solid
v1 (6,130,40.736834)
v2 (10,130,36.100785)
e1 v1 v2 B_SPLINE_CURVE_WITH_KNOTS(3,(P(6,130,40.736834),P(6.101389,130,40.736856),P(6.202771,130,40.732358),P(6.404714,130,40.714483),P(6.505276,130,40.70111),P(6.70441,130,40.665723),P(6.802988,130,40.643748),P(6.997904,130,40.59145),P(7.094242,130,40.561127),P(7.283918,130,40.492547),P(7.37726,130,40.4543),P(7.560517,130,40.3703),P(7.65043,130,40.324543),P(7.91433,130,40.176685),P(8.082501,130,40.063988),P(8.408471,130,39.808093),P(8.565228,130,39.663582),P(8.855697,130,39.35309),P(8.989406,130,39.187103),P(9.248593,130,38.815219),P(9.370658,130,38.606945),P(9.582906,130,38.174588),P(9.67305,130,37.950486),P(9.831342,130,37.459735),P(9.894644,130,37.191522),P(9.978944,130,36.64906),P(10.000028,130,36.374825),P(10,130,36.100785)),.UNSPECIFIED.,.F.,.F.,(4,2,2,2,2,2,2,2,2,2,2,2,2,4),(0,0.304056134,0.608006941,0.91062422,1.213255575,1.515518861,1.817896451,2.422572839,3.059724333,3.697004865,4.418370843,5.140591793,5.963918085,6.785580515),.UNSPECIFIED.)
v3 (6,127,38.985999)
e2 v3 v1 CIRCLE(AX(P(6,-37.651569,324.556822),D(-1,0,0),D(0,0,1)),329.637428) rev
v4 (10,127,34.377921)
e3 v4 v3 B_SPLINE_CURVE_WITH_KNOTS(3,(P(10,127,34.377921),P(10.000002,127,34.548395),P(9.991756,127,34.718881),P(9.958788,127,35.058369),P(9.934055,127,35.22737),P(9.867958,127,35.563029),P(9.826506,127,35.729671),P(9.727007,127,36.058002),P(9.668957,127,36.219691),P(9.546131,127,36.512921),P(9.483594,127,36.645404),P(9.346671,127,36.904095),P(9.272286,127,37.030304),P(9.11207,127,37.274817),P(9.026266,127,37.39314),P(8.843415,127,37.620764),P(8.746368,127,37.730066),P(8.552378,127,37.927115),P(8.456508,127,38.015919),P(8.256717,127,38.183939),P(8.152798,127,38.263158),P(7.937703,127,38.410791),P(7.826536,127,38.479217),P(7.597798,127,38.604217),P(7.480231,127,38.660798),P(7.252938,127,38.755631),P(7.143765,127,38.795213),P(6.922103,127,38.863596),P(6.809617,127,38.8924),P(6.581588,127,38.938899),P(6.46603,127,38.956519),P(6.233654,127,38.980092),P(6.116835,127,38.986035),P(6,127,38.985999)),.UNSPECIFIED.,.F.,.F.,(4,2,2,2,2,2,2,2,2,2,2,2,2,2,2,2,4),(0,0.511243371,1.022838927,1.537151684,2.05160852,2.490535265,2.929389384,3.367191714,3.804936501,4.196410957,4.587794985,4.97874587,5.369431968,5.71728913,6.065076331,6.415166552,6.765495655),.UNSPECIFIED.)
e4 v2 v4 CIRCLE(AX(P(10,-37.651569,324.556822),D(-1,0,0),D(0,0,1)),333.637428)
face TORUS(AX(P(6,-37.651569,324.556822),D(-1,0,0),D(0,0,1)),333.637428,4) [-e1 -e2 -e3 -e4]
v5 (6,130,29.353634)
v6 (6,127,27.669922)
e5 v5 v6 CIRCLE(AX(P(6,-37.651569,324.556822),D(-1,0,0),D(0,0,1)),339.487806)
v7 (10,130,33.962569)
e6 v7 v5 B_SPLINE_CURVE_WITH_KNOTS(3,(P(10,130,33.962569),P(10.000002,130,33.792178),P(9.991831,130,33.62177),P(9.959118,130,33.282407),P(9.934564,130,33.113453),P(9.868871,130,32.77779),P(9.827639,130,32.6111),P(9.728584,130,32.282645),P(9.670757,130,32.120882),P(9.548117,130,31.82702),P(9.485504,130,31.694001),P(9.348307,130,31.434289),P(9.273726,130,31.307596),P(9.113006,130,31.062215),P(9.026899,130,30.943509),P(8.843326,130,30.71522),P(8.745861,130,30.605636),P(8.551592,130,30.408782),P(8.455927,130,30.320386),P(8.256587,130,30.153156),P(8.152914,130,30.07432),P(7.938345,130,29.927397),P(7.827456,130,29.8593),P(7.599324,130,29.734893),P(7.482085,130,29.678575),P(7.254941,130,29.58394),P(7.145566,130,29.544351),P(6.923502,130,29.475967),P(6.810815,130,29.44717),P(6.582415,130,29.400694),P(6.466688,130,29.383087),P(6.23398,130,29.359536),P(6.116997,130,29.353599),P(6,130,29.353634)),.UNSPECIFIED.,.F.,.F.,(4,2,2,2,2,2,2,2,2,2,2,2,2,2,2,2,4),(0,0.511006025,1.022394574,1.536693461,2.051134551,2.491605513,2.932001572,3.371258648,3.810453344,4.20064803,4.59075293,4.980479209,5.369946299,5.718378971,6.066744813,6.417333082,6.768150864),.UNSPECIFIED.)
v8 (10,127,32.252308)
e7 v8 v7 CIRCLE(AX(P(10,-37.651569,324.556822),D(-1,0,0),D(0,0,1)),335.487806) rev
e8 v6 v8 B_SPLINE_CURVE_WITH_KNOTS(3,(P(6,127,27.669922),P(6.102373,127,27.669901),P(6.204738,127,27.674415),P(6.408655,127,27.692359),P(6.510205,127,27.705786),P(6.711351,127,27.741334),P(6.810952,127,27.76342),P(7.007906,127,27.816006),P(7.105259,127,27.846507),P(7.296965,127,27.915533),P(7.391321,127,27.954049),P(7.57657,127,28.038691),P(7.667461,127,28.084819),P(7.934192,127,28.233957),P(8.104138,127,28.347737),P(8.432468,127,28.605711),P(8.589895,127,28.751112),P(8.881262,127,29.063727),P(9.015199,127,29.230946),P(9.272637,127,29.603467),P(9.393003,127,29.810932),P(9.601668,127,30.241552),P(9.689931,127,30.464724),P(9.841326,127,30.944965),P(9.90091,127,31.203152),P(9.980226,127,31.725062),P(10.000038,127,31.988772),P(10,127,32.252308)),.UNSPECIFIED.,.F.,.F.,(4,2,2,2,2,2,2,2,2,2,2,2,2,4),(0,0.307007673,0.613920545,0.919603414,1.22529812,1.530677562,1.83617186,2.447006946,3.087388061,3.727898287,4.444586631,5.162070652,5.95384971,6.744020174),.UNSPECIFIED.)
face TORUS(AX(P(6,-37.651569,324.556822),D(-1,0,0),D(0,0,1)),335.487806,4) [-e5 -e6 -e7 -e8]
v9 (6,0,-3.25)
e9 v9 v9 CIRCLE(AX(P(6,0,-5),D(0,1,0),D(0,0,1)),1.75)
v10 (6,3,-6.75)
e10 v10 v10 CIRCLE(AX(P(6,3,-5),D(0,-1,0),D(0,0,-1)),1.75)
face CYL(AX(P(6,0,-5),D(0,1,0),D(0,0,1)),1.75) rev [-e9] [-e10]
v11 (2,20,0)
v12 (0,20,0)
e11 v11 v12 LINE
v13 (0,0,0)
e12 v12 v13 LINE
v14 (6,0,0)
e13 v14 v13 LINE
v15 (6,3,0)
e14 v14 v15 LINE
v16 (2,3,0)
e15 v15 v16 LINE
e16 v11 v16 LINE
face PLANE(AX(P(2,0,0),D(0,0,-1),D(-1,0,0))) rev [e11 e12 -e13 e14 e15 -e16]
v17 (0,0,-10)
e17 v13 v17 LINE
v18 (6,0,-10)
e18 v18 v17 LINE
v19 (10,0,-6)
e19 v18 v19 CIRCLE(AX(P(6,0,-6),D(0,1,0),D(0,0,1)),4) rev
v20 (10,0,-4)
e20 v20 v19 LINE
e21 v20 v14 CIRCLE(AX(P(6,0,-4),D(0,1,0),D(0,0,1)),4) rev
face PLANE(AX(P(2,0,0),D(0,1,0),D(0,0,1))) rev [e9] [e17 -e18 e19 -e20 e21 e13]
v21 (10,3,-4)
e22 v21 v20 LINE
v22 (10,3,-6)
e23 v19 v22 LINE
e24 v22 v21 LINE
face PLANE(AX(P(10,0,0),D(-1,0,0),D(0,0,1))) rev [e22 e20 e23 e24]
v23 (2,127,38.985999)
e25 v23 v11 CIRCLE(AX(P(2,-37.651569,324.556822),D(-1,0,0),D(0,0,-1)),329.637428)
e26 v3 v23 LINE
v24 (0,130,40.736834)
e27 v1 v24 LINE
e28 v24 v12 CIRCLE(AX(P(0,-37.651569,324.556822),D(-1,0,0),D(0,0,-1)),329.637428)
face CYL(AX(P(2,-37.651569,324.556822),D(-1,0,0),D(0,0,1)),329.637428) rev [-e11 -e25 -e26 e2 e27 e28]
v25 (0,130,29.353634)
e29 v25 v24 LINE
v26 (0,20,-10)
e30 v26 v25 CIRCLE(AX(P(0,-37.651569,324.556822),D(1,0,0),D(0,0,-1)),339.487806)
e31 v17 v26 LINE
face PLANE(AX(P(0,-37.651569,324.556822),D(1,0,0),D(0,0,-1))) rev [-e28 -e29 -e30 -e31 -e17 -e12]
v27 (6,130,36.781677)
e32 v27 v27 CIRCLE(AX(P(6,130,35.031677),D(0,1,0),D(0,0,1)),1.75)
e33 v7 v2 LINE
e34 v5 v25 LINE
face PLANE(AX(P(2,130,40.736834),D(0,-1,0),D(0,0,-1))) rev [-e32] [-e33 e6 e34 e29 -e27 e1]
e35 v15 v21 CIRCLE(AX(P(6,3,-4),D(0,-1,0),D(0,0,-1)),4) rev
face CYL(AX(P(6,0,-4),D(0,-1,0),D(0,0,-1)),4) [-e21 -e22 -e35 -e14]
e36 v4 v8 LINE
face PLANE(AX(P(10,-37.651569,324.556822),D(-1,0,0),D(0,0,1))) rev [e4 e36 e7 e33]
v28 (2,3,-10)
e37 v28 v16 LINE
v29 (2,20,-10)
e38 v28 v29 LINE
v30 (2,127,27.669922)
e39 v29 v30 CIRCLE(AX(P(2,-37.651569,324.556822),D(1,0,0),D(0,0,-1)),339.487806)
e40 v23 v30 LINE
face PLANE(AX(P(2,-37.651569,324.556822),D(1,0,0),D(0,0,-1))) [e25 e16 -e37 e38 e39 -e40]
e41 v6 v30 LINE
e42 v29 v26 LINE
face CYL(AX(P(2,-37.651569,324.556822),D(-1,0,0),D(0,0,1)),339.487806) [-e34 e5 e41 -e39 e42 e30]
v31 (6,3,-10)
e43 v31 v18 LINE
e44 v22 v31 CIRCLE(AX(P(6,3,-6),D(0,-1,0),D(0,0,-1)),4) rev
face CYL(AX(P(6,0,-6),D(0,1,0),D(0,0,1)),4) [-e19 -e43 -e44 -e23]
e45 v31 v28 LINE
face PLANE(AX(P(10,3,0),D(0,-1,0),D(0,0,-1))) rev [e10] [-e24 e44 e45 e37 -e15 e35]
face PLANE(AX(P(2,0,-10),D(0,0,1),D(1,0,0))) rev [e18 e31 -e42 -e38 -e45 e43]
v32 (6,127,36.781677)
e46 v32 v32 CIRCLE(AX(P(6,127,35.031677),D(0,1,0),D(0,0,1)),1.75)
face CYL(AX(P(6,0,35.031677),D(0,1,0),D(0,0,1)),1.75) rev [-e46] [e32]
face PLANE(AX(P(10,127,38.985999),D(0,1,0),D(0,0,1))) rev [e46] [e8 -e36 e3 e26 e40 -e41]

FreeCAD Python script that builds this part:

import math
import FreeCAD as App
import Part
import Sketcher
Q = App.Units.Quantity


def edges_at(feature, points):
    """Names of the edges that pass closest to the given points."""
    edges = feature.Shape.Edges
    near = lambda p: min(range(len(edges)), key=lambda i: edges[i].distToShape(Part.Vertex(*p))[0])
    return sorted({f"Edge{near(p) + 1}" for p in points})

doc = App.newDocument("Part")
body = doc.addObject("PartDesign::Body", "Body")

sketch1 = body.newObject("Sketcher::SketchObject", "Sketch")
sketch1.AttachmentSupport = (doc.getObject("YZ_Plane"), [""])
sketch1.MapMode = "FlatFace"
sketch1.addGeometry(Part.LineSegment(App.Vector(130, 29, 0), App.Vector(130, 41, 0)), False)
sketch1.addGeometry(Part.ArcOfCircle(Part.Circle(App.Vector(-38, 325, 0), App.Vector(0, 0, 1), 330), math.radians(-80), math.radians(-59)), False)
sketch1.addGeometry(Part.LineSegment(App.Vector(20, 0, 0), App.Vector(0, 0, 0)), False)
sketch1.addGeometry(Part.LineSegment(App.Vector(0, 0, 0), App.Vector(0, -10, 0)), False)
sketch1.addGeometry(Part.LineSegment(App.Vector(0, -10, 0), App.Vector(20, -10, 0)), False)
sketch1.addGeometry(Part.ArcOfCircle(Part.Circle(App.Vector(-38, 325, 0), App.Vector(0, 0, 1), 339), math.radians(-80.22), math.radians(-60.41)), False)
sketch1.addConstraint(Sketcher.Constraint("Coincident", 0, 2, 1, 2))
sketch1.addConstraint(Sketcher.Constraint("Coincident", 1, 1, 2, 1))
sketch1.addConstraint(Sketcher.Constraint("Coincident", 2, 2, 3, 1))
sketch1.addConstraint(Sketcher.Constraint("Coincident", 3, 2, 4, 1))
sketch1.addConstraint(Sketcher.Constraint("Coincident", 4, 2, 5, 1))
sketch1.addConstraint(Sketcher.Constraint("Coincident", 5, 2, 0, 1))
sketch1.addConstraint(Sketcher.Constraint("Vertical", 0))
sketch1.addConstraint(Sketcher.Constraint("Horizontal", 2))
sketch1.addConstraint(Sketcher.Constraint("Vertical", 3))
sketch1.addConstraint(Sketcher.Constraint("Horizontal", 4))
sketch1.addConstraint(Sketcher.Constraint("Coincident", 2, 2, -1, 1))
sketch1.addConstraint(Sketcher.Constraint("Coincident", 5, 3, 1, 3))
sketch1.addConstraint(Sketcher.Constraint("Vertical", 1, 1, 4, 2))
sketch1.addConstraint(Sketcher.Constraint("DistanceX", 2, 2, 2, 1, Q("20 mm")))
sketch1.addConstraint(Sketcher.Constraint("DistanceY", 3, 2, 3, 1, Q("10 mm")))
sketch1.addConstraint(Sketcher.Constraint("DistanceX", -1, 1, 0, 2, Q("130 mm")))
sketch1.addConstraint(Sketcher.Constraint("Radius", 1, Q("329.637428 mm")))
sketch1.addConstraint(Sketcher.Constraint("DistanceY", 0, 1, 0, 2, Q("11.3832 mm")))
pad1 = body.newObject("PartDesign::Pad", "Pad")
pad1.Profile = sketch1
pad1.Length = 2

sketch2 = body.newObject("Sketcher::SketchObject", "Sketch001")
sketch2.AttachmentSupport = (doc.getObject("YZ_Plane"), [""])
sketch2.MapMode = "FlatFace"
sketch2.AttachmentOffset = App.Placement(App.Vector(0, 0, 2), App.Rotation())
sketch2.addGeometry(Part.LineSegment(App.Vector(3, 0, 0), App.Vector(0, 0, 0)), False)
sketch2.addGeometry(Part.LineSegment(App.Vector(0, 0, 0), App.Vector(0, -10, 0)), False)
sketch2.addGeometry(Part.LineSegment(App.Vector(0, -10, 0), App.Vector(3, -10, 0)), False)
sketch2.addGeometry(Part.LineSegment(App.Vector(3, -10, 0), App.Vector(3, 0, 0)), False)
sketch2.addGeometry(Part.LineSegment(App.Vector(130, 29.4, 0), App.Vector(130, 40.7, 0)), False)
sketch2.addGeometry(Part.ArcOfCircle(Part.Circle(App.Vector(-37.7, 324.6, 0), App.Vector(0, 0, 1), 329.6), math.radians(-60.03), math.radians(-59.43)), False)
sketch2.addGeometry(Part.LineSegment(App.Vector(127, 39, 0), App.Vector(127, 27.7, 0)), False)
sketch2.addGeometry(Part.ArcOfCircle(Part.Circle(App.Vector(-37.7, 324.6, 0), App.Vector(0, 0, 1), 339.5), math.radians(-60.99), math.radians(-60.41)), False)
sketch2.addConstraint(Sketcher.Constraint("Coincident", 0, 2, 1, 1))
sketch2.addConstraint(Sketcher.Constraint("Coincident", 1, 2, 2, 1))
sketch2.addConstraint(Sketcher.Constraint("Coincident", 2, 2, 3, 1))
sketch2.addConstraint(Sketcher.Constraint("Coincident", 3, 2, 0, 1))
sketch2.addConstraint(Sketcher.Constraint("Coincident", 4, 2, 5, 2))
sketch2.addConstraint(Sketcher.Constraint("Coincident", 5, 1, 6, 1))
sketch2.addConstraint(Sketcher.Constraint("Coincident", 6, 2, 7, 1))
sketch2.addConstraint(Sketcher.Constraint("Coincident", 7, 2, 4, 1))
sketch2.addConstraint(Sketcher.Constraint("Horizontal", 0))
sketch2.addConstraint(Sketcher.Constraint("Vertical", 1))
sketch2.addConstraint(Sketcher.Constraint("Horizontal", 2))
sketch2.addConstraint(Sketcher.Constraint("Vertical", 3))
sketch2.addConstraint(Sketcher.Constraint("Vertical", 4))
sketch2.addConstraint(Sketcher.Constraint("Vertical", 6))
sketch2.addConstraint(Sketcher.Constraint("Coincident", 0, 2, -1, 1))
sketch2.addConstraint(Sketcher.Constraint("Coincident", 7, 3, 5, 3))
sketch2.addConstraint(Sketcher.Constraint("DistanceX", 0, 2, 0, 1, Q("3 mm")))
sketch2.addConstraint(Sketcher.Constraint("DistanceY", 1, 2, 1, 1, Q("10 mm")))
sketch2.addConstraint(Sketcher.Constraint("DistanceX", -1, 1, 4, 2, Q("130 mm")))
sketch2.addConstraint(Sketcher.Constraint("DistanceX", -1, 1, 5, 1, Q("127 mm")))
sketch2.addConstraint(Sketcher.Constraint("Radius", 5, Q("329.63745 mm")))
sketch2.addConstraint(Sketcher.Constraint("Radius", 7, Q("339.487819 mm")))
sketch2.addConstraint(Sketcher.Constraint("DistanceY", 4, 2, 7, 3, Q("283.819999 mm")))
sketch2.addConstraint(Sketcher.Constraint("DistanceY", -1, 1, 5, 1, Q("38.985999 mm")))
pad2 = body.newObject("PartDesign::Pad", "Pad001")
pad2.Profile = sketch2
pad2.Length = 8
doc.recompute()

fillet = body.newObject("PartDesign::Fillet", "Fillet")
fillet.Base = (pad2, edges_at(pad2, [
    (10, 1.5, 0),
    (10, 1.5, -10),
    (10, 128.502, 39.857),
    (10, 128.502, 28.508),
]))
fillet.Radius = 4

sketch3 = body.newObject("Sketcher::SketchObject", "Sketch002")
sketch3.AttachmentSupport = (doc.getObject("XZ_Plane"), [""])
sketch3.MapMode = "FlatFace"
sketch3.AttachmentOffset = App.Placement(App.Vector(0, 0, -3), App.Rotation())
sketch3.addGeometry(Part.Circle(App.Vector(6, -5, 0), App.Vector(0, 0, 1), 1.8), False)
sketch3.addGeometry(Part.Circle(App.Vector(6, 35, 0), App.Vector(0, 0, 1), 1.8), False)
sketch3.addConstraint(Sketcher.Constraint("Equal", 0, 1))
sketch3.addConstraint(Sketcher.Constraint("Vertical", 0, 3, 1, 3))
sketch3.addConstraint(Sketcher.Constraint("Diameter", 0, Q("3.5 mm")))
sketch3.addConstraint(Sketcher.Constraint("DistanceX", -1, 1, 0, 3, Q("6 mm")))
sketch3.addConstraint(Sketcher.Constraint("DistanceY", 0, 3, -1, 1, Q("5 mm")))
sketch3.addConstraint(Sketcher.Constraint("DistanceY", -1, 1, 1, 3, Q("35.031677 mm")))
pocket1 = body.newObject("PartDesign::Pocket", "Pocket")
pocket1.Profile = sketch3
pocket1.Type = "ThroughAll"
pocket1.Midplane = True

doc.recompute()
